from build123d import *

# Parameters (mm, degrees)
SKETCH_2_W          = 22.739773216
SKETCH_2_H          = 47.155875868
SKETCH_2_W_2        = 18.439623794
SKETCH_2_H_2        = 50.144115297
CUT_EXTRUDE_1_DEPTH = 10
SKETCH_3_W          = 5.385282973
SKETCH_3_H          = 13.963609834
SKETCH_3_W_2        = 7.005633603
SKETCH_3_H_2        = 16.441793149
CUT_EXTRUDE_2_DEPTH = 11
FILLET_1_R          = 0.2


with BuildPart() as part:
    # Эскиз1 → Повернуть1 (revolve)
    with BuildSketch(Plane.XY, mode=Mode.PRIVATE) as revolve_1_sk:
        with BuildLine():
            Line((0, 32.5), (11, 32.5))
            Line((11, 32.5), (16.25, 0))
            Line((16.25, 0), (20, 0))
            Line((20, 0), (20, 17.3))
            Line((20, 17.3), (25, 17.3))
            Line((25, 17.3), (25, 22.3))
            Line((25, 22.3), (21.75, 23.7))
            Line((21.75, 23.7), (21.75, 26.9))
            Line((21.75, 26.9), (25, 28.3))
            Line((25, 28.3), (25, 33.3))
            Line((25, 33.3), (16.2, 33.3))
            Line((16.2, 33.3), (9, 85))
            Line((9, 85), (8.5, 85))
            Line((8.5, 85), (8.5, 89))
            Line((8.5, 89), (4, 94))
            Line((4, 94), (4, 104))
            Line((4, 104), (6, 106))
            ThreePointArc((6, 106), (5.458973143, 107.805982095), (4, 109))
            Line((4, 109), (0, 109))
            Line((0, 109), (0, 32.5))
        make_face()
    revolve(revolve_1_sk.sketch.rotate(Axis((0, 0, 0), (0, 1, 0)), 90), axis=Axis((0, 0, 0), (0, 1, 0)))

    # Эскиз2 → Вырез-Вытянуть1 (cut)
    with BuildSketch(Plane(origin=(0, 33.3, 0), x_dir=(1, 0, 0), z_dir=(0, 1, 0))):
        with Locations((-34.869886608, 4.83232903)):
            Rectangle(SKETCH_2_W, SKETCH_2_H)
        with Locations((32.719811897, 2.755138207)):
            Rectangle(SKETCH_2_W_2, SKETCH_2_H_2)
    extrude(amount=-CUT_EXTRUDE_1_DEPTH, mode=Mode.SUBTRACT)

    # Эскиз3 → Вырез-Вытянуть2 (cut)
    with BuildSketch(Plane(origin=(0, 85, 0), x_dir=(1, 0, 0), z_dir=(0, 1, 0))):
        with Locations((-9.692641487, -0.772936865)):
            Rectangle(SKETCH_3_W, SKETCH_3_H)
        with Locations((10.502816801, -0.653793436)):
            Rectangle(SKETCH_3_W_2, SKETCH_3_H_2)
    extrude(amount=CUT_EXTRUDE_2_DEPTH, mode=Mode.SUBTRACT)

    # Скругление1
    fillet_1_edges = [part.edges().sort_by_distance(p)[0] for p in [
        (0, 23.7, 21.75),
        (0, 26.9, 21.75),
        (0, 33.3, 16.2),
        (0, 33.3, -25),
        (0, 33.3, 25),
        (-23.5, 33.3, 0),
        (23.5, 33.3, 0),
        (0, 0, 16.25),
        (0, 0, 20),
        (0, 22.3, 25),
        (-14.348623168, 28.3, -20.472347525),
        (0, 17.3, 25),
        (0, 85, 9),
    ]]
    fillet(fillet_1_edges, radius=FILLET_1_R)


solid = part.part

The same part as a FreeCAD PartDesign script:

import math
import FreeCAD as App
import Part
import Sketcher
Q = App.Units.Quantity


def edges_at(feature, points):
    """Names of the edges that pass closest to the given points."""
    edges = feature.Shape.Edges
    near = lambda p: min(range(len(edges)), key=lambda i: edges[i].distToShape(Part.Vertex(*p))[0])
    return sorted({f"Edge{near(p) + 1}" for p in points})

doc = App.newDocument("Part")
body = doc.addObject("PartDesign::Body", "Body")

# Sketch on XY plane
sketch1 = body.newObject("Sketcher::SketchObject", "Sketch")
sketch1.AttachmentSupport = (doc.getObject("XY_Plane"), [""])
sketch1.MapMode = "FlatFace"
sketch1.addGeometry([
    Part.LineSegment(App.Vector(0, 32.5, 0), App.Vector(11, 32.5, 0)),  # 0
    Part.LineSegment(App.Vector(11, 32.5, 0), App.Vector(16.2, 0, 0)),  # 1
    Part.LineSegment(App.Vector(16.2, 0, 0), App.Vector(20, 0, 0)),  # 2
    Part.LineSegment(App.Vector(20, 0, 0), App.Vector(20, 17.3, 0)),  # 3
    Part.LineSegment(App.Vector(20, 17.3, 0), App.Vector(25, 17.3, 0)),  # 4
    Part.LineSegment(App.Vector(25, 17.3, 0), App.Vector(25, 22.3, 0)),  # 5
    Part.LineSegment(App.Vector(25, 22.3, 0), App.Vector(21.8, 23.7, 0)),  # 6
    Part.LineSegment(App.Vector(21.8, 23.7, 0), App.Vector(21.8, 26.9, 0)),  # 7
    Part.LineSegment(App.Vector(21.8, 26.9, 0), App.Vector(25, 28.3, 0)),  # 8
    Part.LineSegment(App.Vector(25, 28.3, 0), App.Vector(25, 33.3, 0)),  # 9
    Part.LineSegment(App.Vector(25, 33.3, 0), App.Vector(16.2, 33.3, 0)),  # 10
    Part.LineSegment(App.Vector(16.2, 33.3, 0), App.Vector(9, 85, 0)),  # 11
    Part.LineSegment(App.Vector(9, 85, 0), App.Vector(8.5, 85, 0)),  # 12
    Part.LineSegment(App.Vector(8.5, 85, 0), App.Vector(8.5, 89, 0)),  # 13
    Part.LineSegment(App.Vector(8.5, 89, 0), App.Vector(4, 94, 0)),  # 14
    Part.LineSegment(App.Vector(4, 94, 0), App.Vector(4, 104, 0)),  # 15
    Part.LineSegment(App.Vector(4, 104, 0), App.Vector(6, 106, 0)),  # 16
    Part.ArcOfCircle(Part.Circle(App.Vector(2.8, 106, 0), App.Vector(0, 0, 1), 3.2), math.radians(0), math.radians(68)),  # 17
    Part.LineSegment(App.Vector(4, 109, 0), App.Vector(0, 109, 0)),  # 18
    Part.LineSegment(App.Vector(0, 109, 0), App.Vector(0, 32.5, 0)),  # 19
], False)
sketch1.addConstraint([
    Sketcher.Constraint("Coincident", 0, 2, 1, 1),
    Sketcher.Constraint("Coincident", 1, 2, 2, 1),
    Sketcher.Constraint("Coincident", 2, 2, 3, 1),
    Sketcher.Constraint("Coincident", 3, 2, 4, 1),
    Sketcher.Constraint("Coincident", 4, 2, 5, 1),
    Sketcher.Constraint("Coincident", 5, 2, 6, 1),
    Sketcher.Constraint("Coincident", 6, 2, 7, 1),
    Sketcher.Constraint("Coincident", 7, 2, 8, 1),
    Sketcher.Constraint("Coincident", 8, 2, 9, 1),
    Sketcher.Constraint("Coincident", 9, 2, 10, 1),
    Sketcher.Constraint("Coincident", 10, 2, 11, 1),
    Sketcher.Constraint("Coincident", 11, 2, 12, 1),
    Sketcher.Constraint("Coincident", 12, 2, 13, 1),
    Sketcher.Constraint("Coincident", 13, 2, 14, 1),
    Sketcher.Constraint("Coincident", 14, 2, 15, 1),
    Sketcher.Constraint("Coincident", 15, 2, 16, 1),
    Sketcher.Constraint("Coincident", 16, 2, 17, 1),
    Sketcher.Constraint("Coincident", 17, 2, 18, 1),
    Sketcher.Constraint("Coincident", 18, 2, 19, 1),
    Sketcher.Constraint("Coincident", 19, 2, 0, 1),
    Sketcher.Constraint("Horizontal", 0),
    Sketcher.Constraint("Horizontal", 2),
    Sketcher.Constraint("Vertical", 3),
    Sketcher.Constraint("Horizontal", 4),
    Sketcher.Constraint("Vertical", 5),
    Sketcher.Constraint("Vertical", 7),
    Sketcher.Constraint("Vertical", 9),
    Sketcher.Constraint("Horizontal", 10),
    Sketcher.Constraint("Horizontal", 12),
    Sketcher.Constraint("Vertical", 13),
    Sketcher.Constraint("Vertical", 15),
    Sketcher.Constraint("Horizontal", 18),
    Sketcher.Constraint("Vertical", 19),
    Sketcher.Constraint("PointOnObject", 1, 2, -1),
    Sketcher.Constraint("PointOnObject", 18, 2, -2),
    Sketcher.Constraint("Vertical", 5, 2, 8, 2),
    Sketcher.Constraint("Vertical", 15, 2, 17, 2),
    Sketcher.Constraint("Equal", 4, 5),
    Sketcher.Constraint("Equal", 5, 9),
    Sketcher.Constraint("Equal", 18, 13),
    Sketcher.Constraint("Equal", 6, 8),
    Sketcher.Constraint("DistanceX", 0, 1, 0, 2, Q("11 mm")),
    Sketcher.Constraint("DistanceX", 4, 1, 4, 2, Q("5 mm")),
    Sketcher.Constraint("DistanceX", 18, 2, 18, 1, Q("4 mm")),
    Sketcher.Constraint("DistanceY", 15, 1, 15, 2, Q("10 mm")),
    Sketcher.Constraint("Angle", 16, Q("45 deg")),
    Sketcher.Constraint("DistanceX", 10, 2, 10, 1, Q("8.8 mm")),
    Sketcher.Constraint("DistanceX", 12, 2, 12, 1, Q("0.5 mm")),
    Sketcher.Constraint("DistanceY", 3, 1, 3, 2, Q("17.3 mm")),
    Sketcher.Constraint("DistanceY", 7, 1, 7, 2, Q("3.2 mm")),
    Sketcher.Constraint("DistanceY", 19, 2, 19, 1, Q("76.5 mm")),
    Sketcher.Constraint("DistanceX", -1, 1, 2, 2, Q("20 mm")),
    Sketcher.Constraint("DistanceX", -1, 1, 11, 2, Q("9 mm")),
    Sketcher.Constraint("DistanceY", -1, 1, 11, 2, Q("85 mm")),
    Sketcher.Constraint("DistanceY", -1, 1, 14, 2, Q("94 mm")),
    Sketcher.Constraint("DistanceX", -1, 1, 16, 2, Q("6 mm")),
    Sketcher.Constraint("DistanceY", -1, 1, 17, 2, Q("109 mm")),
    Sketcher.Constraint("DistanceY", 5, 2, 8, 2, Q("6 mm")),
    Sketcher.Constraint("DistanceX", 2, 1, 2, 2, Q("3.75 mm")),
    Sketcher.Constraint("DistanceX", -1, 1, 6, 2, Q("21.75 mm")),
    Sketcher.Constraint("Radius", 17, Q("3.221693 mm")),
])
revolution = body.newObject("PartDesign::Revolution", "Revolution")
revolution.Profile = sketch1
revolution.ReferenceAxis = (sketch1, ["V_Axis"])
revolution.Angle = 360

# Sketch on XZ plane
sketch2 = body.newObject("Sketcher::SketchObject", "Sketch001")
sketch2.AttachmentSupport = (doc.getObject("XZ_Plane"), [""])
sketch2.MapMode = "FlatFace"
sketch2.AttachmentOffset = App.Placement(App.Vector(0, 0, -33.3), App.Rotation())
sketch2.addGeometry([
    Part.LineSegment(App.Vector(-46, -28, 0), App.Vector(-46, 19, 0)),  # 0
    Part.LineSegment(App.Vector(-46, 19, 0), App.Vector(-24, 19, 0)),  # 1
    Part.LineSegment(App.Vector(-24, 19, 0), App.Vector(-24, -28, 0)),  # 2
    Part.LineSegment(App.Vector(-24, -28, 0), App.Vector(-46, -28, 0)),  # 3
    Part.LineSegment(App.Vector(24, -28, 0), App.Vector(24, 22, 0)),  # 4
    Part.LineSegment(App.Vector(24, 22, 0), App.Vector(42, 22, 0)),  # 5
    Part.LineSegment(App.Vector(42, 22, 0), App.Vector(42, -28, 0)),  # 6
    Part.LineSegment(App.Vector(42, -28, 0), App.Vector(24, -28, 0)),  # 7
], False)
sketch2.addConstraint([
    Sketcher.Constraint("Coincident", 0, 2, 1, 1),
    Sketcher.Constraint("Coincident", 1, 2, 2, 1),
    Sketcher.Constraint("Coincident", 2, 2, 3, 1),
    Sketcher.Constraint("Coincident", 3, 2, 0, 1),
    Sketcher.Constraint("Coincident", 4, 2, 5, 1),
    Sketcher.Constraint("Coincident", 5, 2, 6, 1),
    Sketcher.Constraint("Coincident", 6, 2, 7, 1),
    Sketcher.Constraint("Coincident", 7, 2, 4, 1),
    Sketcher.Constraint("Vertical", 0),
    Sketcher.Constraint("Horizontal", 1),
    Sketcher.Constraint("Vertical", 2),
    Sketcher.Constraint("Horizontal", 3),
    Sketcher.Constraint("Vertical", 4),
    Sketcher.Constraint("Horizontal", 5),
    Sketcher.Constraint("Vertical", 6),
    Sketcher.Constraint("Horizontal", 7),
    Sketcher.Constraint("DistanceX", 1, 2, 4, 2, Q("47 mm")),
    Sketcher.Constraint("DistanceX", 1, 2, -1, 1, Q("23.5 mm")),
    Sketcher.Constraint("DistanceX", 1, 1, 1, 2, Q("22.739773 mm")),
    Sketcher.Constraint("DistanceX", 5, 1, 5, 2, Q("18.439624 mm")),
    Sketcher.Constraint("DistanceY", 0, 1, 0, 2, Q("47.155876 mm")),
    Sketcher.Constraint("DistanceY", 4, 1, 4, 2, Q("50.144115 mm")),
    Sketcher.Constraint("DistanceY", -1, 1, 0, 2, Q("18.745609 mm")),
    Sketcher.Constraint("DistanceY", -1, 1, 4, 2, Q("22.316919 mm")),
])
pocket1 = body.newObject("PartDesign::Pocket", "Pocket")
pocket1.Profile = sketch2
pocket1.Length = 10
pocket1.Reversed = True

# Sketch on XZ plane
sketch3 = body.newObject("Sketcher::SketchObject", "Sketch002")
sketch3.AttachmentSupport = (doc.getObject("XZ_Plane"), [""])
sketch3.MapMode = "FlatFace"
sketch3.AttachmentOffset = App.Placement(App.Vector(0, 0, -85), App.Rotation())
sketch3.addGeometry([
    Part.LineSegment(App.Vector(-12, -6, 0), App.Vector(-12, 8, 0)),  # 0
    Part.LineSegment(App.Vector(-12, 8, 0), App.Vector(-7, 8, 0)),  # 1
    Part.LineSegment(App.Vector(-7, 8, 0), App.Vector(-7, -6, 0)),  # 2
    Part.LineSegment(App.Vector(-7, -6, 0), App.Vector(-12, -6, 0)),  # 3
    Part.LineSegment(App.Vector(7, -8, 0), App.Vector(7, 9, 0)),  # 4
    Part.LineSegment(App.Vector(7, 9, 0), App.Vector(14, 9, 0)),  # 5
    Part.LineSegment(App.Vector(14, 9, 0), App.Vector(14, -8, 0)),  # 6
    Part.LineSegment(App.Vector(14, -8, 0), App.Vector(7, -8, 0)),  # 7
], False)
sketch3.addConstraint([
    Sketcher.Constraint("Coincident", 0, 2, 1, 1),
    Sketcher.Constraint("Coincident", 1, 2, 2, 1),
    Sketcher.Constraint("Coincident", 2, 2, 3, 1),
    Sketcher.Constraint("Coincident", 3, 2, 0, 1),
    Sketcher.Constraint("Coincident", 4, 2, 5, 1),
    Sketcher.Constraint("Coincident", 5, 2, 6, 1),
    Sketcher.Constraint("Coincident", 6, 2, 7, 1),
    Sketcher.Constraint("Coincident", 7, 2, 4, 1),
    Sketcher.Constraint("Vertical", 0),
    Sketcher.Constraint("Horizontal", 1),
    Sketcher.Constraint("Vertical", 2),
    Sketcher.Constraint("Horizontal", 3),
    Sketcher.Constraint("Vertical", 4),
    Sketcher.Constraint("Horizontal", 5),
    Sketcher.Constraint("Vertical", 6),
    Sketcher.Constraint("Horizontal", 7),
    Sketcher.Constraint("DistanceX", 1, 2, -1, 1, Q("7 mm")),
    Sketcher.Constraint("DistanceX", -1, 1, 4, 2, Q("7 mm")),
    Sketcher.Constraint("DistanceY", 0, 1, 0, 2, Q("13.96361 mm")),
    Sketcher.Constraint("DistanceX", 1, 1, 1, 2, Q("5.385283 mm")),
    Sketcher.Constraint("DistanceX", 5, 1, 5, 2, Q("7.005634 mm")),
    Sketcher.Constraint("DistanceY", 4, 1, 4, 2, Q("16.441793 mm")),
    Sketcher.Constraint("DistanceY", -1, 1, 0, 2, Q("7.754742 mm")),
    Sketcher.Constraint("DistanceY", -1, 1, 4, 2, Q("8.87469 mm")),
])
pocket2 = body.newObject("PartDesign::Pocket", "Pocket001")
pocket2.Profile = sketch3
pocket2.Length = 11
doc.recompute()

fillet = body.newObject("PartDesign::Fillet", "Fillet")
fillet.Base = (pocket2, edges_at(pocket2, [
    (0, 23.7, 21.75),
    (0, 26.9, 21.75),
    (0, 33.3, 16.2),
    (0, 33.3, -25),
    (0, 33.3, 25),
    (-23.5, 33.3, 0),
    (23.5, 33.3, 0),
    (0, 0, 16.25),
    (0, 0, 20),
    (0, 22.3, 25),
    (-14.349, 28.3, -20.472),
    (0, 17.3, 25),
    (0, 85, 9),
]))
fillet.Radius = 0.2

doc.recompute()
